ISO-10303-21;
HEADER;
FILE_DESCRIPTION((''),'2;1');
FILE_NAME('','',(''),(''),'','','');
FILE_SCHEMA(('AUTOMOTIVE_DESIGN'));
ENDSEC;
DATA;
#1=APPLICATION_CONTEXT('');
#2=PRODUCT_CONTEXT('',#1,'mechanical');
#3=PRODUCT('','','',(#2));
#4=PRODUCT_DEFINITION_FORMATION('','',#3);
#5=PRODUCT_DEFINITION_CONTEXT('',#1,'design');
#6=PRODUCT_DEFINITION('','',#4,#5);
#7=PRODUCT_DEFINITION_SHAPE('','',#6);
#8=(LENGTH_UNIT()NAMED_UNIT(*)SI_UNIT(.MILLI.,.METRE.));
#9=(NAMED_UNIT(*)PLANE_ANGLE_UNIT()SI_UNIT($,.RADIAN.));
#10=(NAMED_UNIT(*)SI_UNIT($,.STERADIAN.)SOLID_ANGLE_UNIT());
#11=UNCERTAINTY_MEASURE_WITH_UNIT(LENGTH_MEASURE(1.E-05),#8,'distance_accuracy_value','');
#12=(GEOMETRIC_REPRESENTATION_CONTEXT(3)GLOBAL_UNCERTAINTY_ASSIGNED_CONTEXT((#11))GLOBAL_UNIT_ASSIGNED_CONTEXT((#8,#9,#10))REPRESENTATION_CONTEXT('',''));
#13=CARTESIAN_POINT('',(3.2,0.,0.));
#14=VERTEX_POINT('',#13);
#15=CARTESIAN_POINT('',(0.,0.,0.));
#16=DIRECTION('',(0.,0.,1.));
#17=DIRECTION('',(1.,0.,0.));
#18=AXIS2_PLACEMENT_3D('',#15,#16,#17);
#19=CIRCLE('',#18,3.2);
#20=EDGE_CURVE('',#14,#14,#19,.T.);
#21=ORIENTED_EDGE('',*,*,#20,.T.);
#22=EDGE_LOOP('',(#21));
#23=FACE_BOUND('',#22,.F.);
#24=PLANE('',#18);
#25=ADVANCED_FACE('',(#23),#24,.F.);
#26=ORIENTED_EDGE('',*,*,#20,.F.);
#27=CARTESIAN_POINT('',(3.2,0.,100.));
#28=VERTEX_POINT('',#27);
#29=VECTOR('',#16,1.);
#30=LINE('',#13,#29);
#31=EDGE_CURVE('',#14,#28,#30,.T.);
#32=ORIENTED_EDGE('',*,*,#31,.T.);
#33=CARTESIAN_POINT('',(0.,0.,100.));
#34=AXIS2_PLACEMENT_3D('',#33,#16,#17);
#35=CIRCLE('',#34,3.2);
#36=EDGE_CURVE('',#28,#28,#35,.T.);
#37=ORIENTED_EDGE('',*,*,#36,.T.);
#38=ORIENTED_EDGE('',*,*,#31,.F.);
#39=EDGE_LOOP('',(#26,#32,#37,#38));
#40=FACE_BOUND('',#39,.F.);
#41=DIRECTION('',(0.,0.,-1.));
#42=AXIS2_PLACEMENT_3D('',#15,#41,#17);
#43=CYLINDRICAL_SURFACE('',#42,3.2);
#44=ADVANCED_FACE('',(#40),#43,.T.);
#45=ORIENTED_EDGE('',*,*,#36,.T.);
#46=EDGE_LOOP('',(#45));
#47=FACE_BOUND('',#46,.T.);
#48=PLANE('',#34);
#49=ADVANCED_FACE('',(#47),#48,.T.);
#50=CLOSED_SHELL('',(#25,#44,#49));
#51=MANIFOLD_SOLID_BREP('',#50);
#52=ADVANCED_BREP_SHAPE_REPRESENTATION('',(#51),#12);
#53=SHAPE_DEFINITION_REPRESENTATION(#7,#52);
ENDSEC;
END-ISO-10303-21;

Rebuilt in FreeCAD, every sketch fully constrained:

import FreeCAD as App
import Part
import Sketcher
from FreeCAD import Vector

doc = App.newDocument("Part")
body = doc.addObject("PartDesign::Body", "Body")

# Sketch on XY plane
sketch1 = body.newObject("Sketcher::SketchObject", "Sketch")
sketch1.AttachmentSupport = (doc.getObject("XY_Plane"), [""])
sketch1.MapMode = "FlatFace"
sketch1.addGeometry(Part.Circle(Vector(0, 0, 0), Vector(0, 0, 1), 3.2), False)
sketch1.addConstraint([
    Sketcher.Constraint("Coincident", 0, 3, -1, 1),
    Sketcher.Constraint("Diameter", 0, 6.4),
])
pad1 = body.newObject("PartDesign::Pad", "Pad")
pad1.Profile = sketch1
pad1.Length = 100

doc.recompute()
